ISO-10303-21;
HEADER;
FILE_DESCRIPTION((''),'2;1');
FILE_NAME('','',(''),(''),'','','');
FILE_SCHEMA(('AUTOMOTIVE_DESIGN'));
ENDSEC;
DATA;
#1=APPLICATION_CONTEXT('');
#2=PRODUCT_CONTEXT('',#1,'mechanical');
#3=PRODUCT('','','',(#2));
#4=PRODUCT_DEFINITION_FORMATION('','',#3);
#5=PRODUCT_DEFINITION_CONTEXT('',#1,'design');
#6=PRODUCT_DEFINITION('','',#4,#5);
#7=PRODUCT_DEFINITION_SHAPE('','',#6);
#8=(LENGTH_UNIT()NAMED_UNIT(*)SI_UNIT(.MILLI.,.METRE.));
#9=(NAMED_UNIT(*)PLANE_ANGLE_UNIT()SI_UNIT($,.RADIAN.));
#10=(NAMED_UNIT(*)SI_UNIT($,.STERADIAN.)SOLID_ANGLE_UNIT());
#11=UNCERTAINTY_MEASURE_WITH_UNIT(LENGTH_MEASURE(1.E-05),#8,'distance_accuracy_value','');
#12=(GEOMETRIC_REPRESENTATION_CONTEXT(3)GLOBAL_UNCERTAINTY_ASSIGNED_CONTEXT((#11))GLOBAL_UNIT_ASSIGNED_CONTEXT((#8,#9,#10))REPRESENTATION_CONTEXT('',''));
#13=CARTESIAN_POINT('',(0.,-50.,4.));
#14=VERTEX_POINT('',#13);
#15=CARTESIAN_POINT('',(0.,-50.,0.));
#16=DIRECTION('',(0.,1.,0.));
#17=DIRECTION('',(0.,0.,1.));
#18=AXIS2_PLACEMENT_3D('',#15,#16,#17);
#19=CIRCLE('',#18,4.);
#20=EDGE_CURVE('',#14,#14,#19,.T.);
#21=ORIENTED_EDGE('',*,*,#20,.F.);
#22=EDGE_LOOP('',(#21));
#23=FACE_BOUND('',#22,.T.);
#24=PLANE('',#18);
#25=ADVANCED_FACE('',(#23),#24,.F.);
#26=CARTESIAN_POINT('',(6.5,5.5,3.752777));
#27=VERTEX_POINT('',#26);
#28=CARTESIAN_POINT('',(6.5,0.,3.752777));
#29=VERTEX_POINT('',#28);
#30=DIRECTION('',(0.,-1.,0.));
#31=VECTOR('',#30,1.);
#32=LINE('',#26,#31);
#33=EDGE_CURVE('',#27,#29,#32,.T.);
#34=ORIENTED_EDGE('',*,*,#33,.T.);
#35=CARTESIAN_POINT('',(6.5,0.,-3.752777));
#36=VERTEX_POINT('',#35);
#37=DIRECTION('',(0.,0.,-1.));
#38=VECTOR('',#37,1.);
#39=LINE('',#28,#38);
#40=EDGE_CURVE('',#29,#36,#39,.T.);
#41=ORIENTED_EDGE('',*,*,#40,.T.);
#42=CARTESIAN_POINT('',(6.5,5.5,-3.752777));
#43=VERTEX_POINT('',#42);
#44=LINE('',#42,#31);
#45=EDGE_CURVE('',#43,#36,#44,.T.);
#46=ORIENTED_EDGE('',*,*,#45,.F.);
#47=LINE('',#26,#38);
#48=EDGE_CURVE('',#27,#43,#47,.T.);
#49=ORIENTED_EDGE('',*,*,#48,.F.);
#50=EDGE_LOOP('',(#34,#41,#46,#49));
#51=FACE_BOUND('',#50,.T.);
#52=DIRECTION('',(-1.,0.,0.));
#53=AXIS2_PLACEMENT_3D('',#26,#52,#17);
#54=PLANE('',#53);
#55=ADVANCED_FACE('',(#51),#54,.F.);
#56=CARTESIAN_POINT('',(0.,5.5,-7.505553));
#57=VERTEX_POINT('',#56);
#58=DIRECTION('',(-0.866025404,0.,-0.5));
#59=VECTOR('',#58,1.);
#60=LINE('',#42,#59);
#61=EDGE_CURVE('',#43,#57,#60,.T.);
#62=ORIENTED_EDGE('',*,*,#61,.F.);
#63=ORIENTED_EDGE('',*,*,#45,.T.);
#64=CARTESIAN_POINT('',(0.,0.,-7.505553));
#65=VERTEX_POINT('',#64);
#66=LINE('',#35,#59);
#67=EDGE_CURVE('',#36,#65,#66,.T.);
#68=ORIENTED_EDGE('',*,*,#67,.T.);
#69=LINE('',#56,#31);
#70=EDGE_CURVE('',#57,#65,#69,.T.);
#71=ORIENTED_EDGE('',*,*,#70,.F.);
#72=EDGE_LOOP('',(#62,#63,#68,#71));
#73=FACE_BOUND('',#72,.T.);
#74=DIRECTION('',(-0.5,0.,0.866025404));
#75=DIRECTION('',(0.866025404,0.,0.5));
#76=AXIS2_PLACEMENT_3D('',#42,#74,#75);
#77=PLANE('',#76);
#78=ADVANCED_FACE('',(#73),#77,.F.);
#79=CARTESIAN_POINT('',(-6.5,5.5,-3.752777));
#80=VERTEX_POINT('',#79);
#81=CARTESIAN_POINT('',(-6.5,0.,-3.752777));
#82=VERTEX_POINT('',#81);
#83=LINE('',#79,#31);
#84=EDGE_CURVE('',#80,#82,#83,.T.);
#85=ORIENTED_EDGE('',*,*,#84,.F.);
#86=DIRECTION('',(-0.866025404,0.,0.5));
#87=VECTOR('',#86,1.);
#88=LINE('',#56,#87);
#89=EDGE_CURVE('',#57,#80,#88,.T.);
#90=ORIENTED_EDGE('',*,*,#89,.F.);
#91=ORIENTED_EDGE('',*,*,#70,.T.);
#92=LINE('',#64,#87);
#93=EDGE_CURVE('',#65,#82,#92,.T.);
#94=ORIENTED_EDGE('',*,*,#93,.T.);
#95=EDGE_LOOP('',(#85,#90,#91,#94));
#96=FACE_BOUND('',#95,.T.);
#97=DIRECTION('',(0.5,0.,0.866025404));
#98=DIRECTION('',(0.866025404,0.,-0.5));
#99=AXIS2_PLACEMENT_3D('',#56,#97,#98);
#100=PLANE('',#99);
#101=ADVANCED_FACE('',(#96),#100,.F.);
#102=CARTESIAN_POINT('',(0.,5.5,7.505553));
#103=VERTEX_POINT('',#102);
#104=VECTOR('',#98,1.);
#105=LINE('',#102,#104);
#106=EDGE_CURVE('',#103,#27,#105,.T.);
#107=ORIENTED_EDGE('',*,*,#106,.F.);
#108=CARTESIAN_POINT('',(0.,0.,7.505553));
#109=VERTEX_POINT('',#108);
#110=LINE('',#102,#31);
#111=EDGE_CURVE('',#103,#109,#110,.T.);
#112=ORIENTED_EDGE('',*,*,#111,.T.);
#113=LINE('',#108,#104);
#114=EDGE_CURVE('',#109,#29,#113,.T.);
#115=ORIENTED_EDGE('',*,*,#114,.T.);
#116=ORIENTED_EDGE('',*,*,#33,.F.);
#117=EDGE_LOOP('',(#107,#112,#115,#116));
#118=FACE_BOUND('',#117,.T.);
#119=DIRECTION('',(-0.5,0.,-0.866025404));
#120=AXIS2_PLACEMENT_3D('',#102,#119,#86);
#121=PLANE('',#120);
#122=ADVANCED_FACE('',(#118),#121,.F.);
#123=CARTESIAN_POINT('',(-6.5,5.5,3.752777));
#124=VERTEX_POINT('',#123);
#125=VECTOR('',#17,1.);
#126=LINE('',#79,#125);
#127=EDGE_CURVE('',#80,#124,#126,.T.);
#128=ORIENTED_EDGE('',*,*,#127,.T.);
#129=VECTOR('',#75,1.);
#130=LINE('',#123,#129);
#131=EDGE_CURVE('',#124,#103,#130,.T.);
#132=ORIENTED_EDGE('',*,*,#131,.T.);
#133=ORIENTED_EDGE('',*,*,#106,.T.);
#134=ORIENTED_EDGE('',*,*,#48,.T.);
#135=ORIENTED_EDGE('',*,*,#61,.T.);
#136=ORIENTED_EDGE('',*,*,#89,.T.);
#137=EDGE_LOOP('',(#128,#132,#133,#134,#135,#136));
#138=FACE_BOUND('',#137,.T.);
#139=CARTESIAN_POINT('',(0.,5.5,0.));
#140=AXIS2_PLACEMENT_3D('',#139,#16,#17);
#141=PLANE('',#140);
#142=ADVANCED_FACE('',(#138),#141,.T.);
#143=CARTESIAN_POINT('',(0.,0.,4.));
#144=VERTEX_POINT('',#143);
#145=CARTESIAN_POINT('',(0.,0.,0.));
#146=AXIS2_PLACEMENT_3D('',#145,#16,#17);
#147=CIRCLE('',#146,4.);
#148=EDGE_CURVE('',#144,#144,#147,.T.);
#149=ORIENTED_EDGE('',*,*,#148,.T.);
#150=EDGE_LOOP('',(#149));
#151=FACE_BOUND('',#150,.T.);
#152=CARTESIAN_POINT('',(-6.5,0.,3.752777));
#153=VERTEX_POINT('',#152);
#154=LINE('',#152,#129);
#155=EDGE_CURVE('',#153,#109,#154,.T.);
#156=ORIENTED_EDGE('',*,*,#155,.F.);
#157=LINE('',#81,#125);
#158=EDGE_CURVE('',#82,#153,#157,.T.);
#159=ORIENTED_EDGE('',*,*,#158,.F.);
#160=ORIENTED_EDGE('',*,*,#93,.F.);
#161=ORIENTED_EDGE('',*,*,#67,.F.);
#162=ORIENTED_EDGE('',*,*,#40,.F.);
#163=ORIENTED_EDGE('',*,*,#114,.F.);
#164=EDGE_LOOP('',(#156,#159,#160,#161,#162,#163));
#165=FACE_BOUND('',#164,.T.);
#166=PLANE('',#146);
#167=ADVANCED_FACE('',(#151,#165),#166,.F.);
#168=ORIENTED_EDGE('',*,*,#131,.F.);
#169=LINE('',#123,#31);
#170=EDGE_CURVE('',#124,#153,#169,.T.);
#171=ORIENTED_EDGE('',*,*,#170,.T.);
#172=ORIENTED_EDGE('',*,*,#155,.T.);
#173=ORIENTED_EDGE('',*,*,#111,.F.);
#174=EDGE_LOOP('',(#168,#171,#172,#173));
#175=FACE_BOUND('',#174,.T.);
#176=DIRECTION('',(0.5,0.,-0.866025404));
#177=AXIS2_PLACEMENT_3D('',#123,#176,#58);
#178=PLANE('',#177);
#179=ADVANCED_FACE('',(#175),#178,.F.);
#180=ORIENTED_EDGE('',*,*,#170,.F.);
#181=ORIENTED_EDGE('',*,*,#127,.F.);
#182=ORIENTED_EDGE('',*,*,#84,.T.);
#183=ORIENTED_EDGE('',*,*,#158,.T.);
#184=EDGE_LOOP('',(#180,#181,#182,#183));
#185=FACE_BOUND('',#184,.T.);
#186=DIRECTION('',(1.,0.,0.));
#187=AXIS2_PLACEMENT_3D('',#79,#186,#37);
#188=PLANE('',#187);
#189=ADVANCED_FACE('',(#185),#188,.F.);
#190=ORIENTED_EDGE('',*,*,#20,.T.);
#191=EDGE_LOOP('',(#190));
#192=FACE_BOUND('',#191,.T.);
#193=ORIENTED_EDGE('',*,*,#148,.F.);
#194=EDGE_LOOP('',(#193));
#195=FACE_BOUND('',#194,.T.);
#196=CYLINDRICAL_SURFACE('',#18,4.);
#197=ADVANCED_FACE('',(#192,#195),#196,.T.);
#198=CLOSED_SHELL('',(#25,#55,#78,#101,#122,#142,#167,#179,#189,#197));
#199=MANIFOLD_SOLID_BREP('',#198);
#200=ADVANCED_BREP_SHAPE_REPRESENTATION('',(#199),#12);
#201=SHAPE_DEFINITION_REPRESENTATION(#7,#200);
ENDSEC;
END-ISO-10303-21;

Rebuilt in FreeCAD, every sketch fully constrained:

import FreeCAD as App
import Part
import Sketcher

V = App.Vector
Q = App.Units.Quantity


def add_polygon(sketch, points):
    """Adds a closed chain of lines whose ends are joined by coincident constraints."""
    first, n = sketch.GeometryCount, len(points)
    for a, b in zip(points, points[1:] + points[:1]):
        sketch.addGeometry(Part.LineSegment(App.Vector(*a, 0), App.Vector(*b, 0)), False)
    for i in range(n):
        sketch.addConstraint(Sketcher.Constraint("Coincident", first + i, 2, first + (i + 1) % n, 1))

doc = App.newDocument("Part")
body = doc.addObject("PartDesign::Body", "Body")

# Sketch on XZ plane
sketch1 = doc.addObject("Sketcher::SketchObject", "Sketch")
body.addObject(sketch1)
sketch1.AttachmentSupport = (doc.XZ_Plane, [""])
sketch1.MapMode = "FlatFace"
add_polygon(sketch1, [(6.5, -3.752777), (0, -7.505553), (-6.5, -3.752777), (-6.5, 3.752777), (0, 7.505553), (6.5, 3.752777)])  # lines 0-5
sketch1.addConstraint([
    Sketcher.Constraint("Vertical", 2),
    Sketcher.Constraint("Vertical", 5),
    Sketcher.Constraint("Symmetric", 0, 2, 3, 2, -1, 1),
    Sketcher.Constraint("Symmetric", 1, 2, 4, 2, -1, 1),
    Sketcher.Constraint("PointOnObject", 0, 2, -2),
    Sketcher.Constraint("Parallel", 0, 3),
    Sketcher.Constraint("Horizontal", 2, 2, 4, 2),
    Sketcher.Constraint("Angle", 0, Q("-150 deg")),
    Sketcher.Constraint("DistanceX", 2, 2, 4, 2, Q("13 mm")),
    Sketcher.Constraint("DistanceY", 2, 1, 2, 2, Q("7.505554 mm")),
])
pad1 = doc.addObject("PartDesign::Pad", "Pad")
body.addObject(pad1)
pad1.Profile = sketch1
pad1.Length = 5.5
pad1.Reversed = True

# Sketch on XZ plane
sketch2 = doc.addObject("Sketcher::SketchObject", "Sketch001")
body.addObject(sketch2)
sketch2.AttachmentSupport = (doc.XZ_Plane, [""])
sketch2.MapMode = "FlatFace"
sketch2.addGeometry(Part.Circle(V(0, 0, 0), V(0, 0, 1), 4), False)
sketch2.addConstraint([
    Sketcher.Constraint("Coincident", 0, 3, -1, 1),
    Sketcher.Constraint("Diameter", 0, Q("8 mm")),
])
pad2 = doc.addObject("PartDesign::Pad", "Pad001")
body.addObject(pad2)
pad2.Profile = sketch2
pad2.Length = 50

doc.recompute()
